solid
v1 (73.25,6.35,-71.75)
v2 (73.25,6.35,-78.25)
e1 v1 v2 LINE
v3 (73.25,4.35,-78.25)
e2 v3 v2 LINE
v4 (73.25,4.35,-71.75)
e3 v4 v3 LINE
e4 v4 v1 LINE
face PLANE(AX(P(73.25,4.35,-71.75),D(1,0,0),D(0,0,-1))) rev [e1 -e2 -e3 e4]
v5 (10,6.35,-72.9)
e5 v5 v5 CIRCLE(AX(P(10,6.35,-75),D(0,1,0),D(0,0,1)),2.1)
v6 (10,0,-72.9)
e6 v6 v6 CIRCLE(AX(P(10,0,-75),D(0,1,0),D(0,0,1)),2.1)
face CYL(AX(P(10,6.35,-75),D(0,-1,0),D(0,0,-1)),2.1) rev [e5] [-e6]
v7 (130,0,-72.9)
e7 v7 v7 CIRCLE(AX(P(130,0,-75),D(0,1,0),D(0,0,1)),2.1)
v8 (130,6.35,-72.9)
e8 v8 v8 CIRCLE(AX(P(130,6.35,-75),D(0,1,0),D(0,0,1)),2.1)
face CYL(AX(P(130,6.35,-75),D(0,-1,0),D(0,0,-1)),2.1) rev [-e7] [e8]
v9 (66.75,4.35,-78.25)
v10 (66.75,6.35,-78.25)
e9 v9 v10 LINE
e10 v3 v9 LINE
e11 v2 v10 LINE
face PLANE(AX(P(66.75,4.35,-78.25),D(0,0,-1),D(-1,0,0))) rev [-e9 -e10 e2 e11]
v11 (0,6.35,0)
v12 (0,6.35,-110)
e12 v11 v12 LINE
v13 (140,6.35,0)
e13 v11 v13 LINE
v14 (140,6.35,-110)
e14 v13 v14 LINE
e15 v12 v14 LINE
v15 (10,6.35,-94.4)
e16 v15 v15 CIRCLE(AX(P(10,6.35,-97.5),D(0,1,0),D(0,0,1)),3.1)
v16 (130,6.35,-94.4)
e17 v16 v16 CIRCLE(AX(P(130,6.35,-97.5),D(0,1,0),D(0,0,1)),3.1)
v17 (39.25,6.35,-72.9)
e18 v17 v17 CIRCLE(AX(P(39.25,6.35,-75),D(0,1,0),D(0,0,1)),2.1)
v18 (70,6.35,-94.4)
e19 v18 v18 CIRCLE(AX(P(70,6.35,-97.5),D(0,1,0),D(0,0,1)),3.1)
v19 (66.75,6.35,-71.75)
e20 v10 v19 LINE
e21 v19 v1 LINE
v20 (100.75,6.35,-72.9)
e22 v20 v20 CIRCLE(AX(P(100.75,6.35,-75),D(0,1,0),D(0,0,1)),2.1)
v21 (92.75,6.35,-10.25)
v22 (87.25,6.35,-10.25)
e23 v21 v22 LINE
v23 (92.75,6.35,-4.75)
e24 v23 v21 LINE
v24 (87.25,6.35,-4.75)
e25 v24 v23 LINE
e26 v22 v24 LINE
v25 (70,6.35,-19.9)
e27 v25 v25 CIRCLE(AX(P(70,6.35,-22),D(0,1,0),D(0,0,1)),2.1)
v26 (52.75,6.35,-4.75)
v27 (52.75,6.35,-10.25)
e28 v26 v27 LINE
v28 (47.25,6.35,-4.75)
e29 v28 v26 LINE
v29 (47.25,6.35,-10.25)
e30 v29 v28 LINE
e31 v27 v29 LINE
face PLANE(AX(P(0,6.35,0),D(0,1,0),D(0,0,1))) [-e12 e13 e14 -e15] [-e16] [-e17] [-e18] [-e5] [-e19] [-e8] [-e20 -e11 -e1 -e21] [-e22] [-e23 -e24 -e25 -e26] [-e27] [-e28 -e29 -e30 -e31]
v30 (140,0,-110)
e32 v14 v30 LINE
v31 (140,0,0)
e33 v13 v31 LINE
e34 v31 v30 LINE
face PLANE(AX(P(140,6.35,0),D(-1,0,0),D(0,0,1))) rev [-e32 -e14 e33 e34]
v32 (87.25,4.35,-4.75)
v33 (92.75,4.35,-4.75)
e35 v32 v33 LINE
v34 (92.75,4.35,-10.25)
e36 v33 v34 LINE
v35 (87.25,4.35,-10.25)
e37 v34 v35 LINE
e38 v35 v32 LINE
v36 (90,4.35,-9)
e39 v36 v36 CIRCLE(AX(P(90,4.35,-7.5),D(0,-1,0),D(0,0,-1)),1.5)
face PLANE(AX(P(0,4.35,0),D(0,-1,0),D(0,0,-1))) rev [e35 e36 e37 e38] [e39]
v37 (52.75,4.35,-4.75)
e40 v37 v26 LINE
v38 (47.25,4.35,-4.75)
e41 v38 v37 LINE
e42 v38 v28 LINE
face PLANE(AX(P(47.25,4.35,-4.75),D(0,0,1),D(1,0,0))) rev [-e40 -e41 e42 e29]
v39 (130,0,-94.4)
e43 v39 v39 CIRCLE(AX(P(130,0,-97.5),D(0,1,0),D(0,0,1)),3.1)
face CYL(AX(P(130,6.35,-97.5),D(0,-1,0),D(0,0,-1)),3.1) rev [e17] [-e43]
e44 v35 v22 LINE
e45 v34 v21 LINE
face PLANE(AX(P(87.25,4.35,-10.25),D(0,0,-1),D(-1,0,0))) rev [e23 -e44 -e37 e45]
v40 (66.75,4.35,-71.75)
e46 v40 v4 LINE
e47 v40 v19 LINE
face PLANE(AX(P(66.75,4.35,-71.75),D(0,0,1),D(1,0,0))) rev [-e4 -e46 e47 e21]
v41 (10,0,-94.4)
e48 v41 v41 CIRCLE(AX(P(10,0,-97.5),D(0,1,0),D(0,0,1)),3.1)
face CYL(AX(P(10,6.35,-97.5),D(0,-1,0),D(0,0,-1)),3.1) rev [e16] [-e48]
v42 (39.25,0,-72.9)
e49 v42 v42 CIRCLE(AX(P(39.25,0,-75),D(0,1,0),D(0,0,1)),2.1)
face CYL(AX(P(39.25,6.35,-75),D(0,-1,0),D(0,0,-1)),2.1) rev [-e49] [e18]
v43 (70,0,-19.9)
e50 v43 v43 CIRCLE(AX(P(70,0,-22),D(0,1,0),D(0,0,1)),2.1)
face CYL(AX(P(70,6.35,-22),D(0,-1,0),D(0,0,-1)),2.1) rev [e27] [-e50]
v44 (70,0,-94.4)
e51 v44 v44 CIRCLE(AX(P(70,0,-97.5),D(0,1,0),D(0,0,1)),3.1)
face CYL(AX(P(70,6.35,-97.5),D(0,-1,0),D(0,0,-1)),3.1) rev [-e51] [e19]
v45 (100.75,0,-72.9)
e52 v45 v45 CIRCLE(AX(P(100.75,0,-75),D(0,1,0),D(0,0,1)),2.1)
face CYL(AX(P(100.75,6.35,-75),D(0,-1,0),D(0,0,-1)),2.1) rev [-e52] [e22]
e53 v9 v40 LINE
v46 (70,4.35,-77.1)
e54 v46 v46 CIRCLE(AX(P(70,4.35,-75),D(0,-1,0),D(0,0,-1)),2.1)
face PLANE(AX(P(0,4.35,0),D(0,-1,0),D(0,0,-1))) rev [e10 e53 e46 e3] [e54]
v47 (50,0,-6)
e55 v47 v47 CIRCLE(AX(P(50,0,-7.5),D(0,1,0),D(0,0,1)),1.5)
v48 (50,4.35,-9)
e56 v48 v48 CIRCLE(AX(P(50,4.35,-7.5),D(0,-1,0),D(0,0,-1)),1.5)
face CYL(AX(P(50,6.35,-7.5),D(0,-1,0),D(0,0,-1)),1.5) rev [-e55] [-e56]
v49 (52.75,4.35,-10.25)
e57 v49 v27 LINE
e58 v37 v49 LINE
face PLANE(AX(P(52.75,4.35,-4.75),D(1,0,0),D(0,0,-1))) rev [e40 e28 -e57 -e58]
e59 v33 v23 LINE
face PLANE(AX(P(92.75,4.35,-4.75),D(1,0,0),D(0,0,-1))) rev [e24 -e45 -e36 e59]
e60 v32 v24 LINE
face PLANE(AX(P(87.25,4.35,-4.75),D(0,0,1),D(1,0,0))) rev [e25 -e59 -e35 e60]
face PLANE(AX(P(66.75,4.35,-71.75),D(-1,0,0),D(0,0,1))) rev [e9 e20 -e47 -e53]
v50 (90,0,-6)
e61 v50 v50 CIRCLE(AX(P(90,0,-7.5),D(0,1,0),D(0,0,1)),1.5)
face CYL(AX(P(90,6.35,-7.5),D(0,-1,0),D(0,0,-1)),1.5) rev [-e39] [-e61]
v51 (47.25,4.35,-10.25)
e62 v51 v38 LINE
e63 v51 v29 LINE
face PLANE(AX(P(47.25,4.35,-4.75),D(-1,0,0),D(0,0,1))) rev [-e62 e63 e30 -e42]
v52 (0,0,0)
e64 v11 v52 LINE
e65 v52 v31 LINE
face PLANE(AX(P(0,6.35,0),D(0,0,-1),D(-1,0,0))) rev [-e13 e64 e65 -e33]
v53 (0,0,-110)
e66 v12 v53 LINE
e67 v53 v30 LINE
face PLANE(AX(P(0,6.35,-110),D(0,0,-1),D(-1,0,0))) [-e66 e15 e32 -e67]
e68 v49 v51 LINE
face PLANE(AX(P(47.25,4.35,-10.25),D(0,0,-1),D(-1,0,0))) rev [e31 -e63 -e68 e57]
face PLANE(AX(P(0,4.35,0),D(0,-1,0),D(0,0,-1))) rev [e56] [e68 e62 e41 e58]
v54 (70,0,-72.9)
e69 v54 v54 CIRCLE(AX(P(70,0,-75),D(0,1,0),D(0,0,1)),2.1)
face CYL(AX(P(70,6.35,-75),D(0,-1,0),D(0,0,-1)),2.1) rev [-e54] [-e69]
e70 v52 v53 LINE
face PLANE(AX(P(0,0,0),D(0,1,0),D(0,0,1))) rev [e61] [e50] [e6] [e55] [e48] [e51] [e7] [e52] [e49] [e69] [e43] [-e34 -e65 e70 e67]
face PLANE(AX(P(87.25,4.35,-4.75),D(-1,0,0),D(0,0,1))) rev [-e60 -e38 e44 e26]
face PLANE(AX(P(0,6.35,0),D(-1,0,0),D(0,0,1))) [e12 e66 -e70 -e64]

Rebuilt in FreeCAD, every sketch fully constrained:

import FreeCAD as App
import Part
import Sketcher

V = App.Vector


def add_polygon(sketch, points):
    """Adds a closed chain of lines whose ends are joined by coincident constraints."""
    first, n = sketch.GeometryCount, len(points)
    for a, b in zip(points, points[1:] + points[:1]):
        sketch.addGeometry(Part.LineSegment(App.Vector(*a, 0), App.Vector(*b, 0)), False)
    for i in range(n):
        sketch.addConstraint(Sketcher.Constraint("Coincident", first + i, 2, first + (i + 1) % n, 1))

doc = App.newDocument("Part")
body = doc.addObject("PartDesign::Body", "Body")

sketch1 = doc.addObject("Sketcher::SketchObject", "Sketch")
body.addObject(sketch1)
sketch1.AttachmentSupport = (doc.XZ_Plane, [""])
sketch1.MapMode = "FlatFace"
add_polygon(sketch1, [(0, -110), (0, 0), (140, 0), (140, -110)])
sketch1.addGeometry(Part.Circle(V(50, -7.5, 0), V(0, 0, 1), 1.5), False)
sketch1.addGeometry(Part.Circle(V(90, -7.5, 0), V(0, 0, 1), 1.5), False)
sketch1.addGeometry(Part.Circle(V(70, -22, 0), V(0, 0, 1), 2.1), False)
sketch1.addGeometry(Part.Circle(V(10, -75, 0), V(0, 0, 1), 2.1), False)
sketch1.addGeometry(Part.Circle(V(39.2, -75, 0), V(0, 0, 1), 2.1), False)
sketch1.addGeometry(Part.Circle(V(10, -97.5, 0), V(0, 0, 1), 3.1), False)
sketch1.addGeometry(Part.Circle(V(70, -75, 0), V(0, 0, 1), 2.1), False)
sketch1.addGeometry(Part.Circle(V(100.8, -75, 0), V(0, 0, 1), 2.1), False)
sketch1.addGeometry(Part.Circle(V(130, -75, 0), V(0, 0, 1), 2.1), False)
sketch1.addGeometry(Part.Circle(V(70, -97.5, 0), V(0, 0, 1), 3.1), False)
sketch1.addGeometry(Part.Circle(V(130, -97.5, 0), V(0, 0, 1), 3.1), False)
sketch1.addConstraint([
    Sketcher.Constraint("Vertical", 0),
    Sketcher.Constraint("Horizontal", 1),
    Sketcher.Constraint("Vertical", 2),
    Sketcher.Constraint("Horizontal", 3),
    Sketcher.Constraint("Coincident", 0, 2, -1, 1),
    Sketcher.Constraint("Equal", 4, 5),
    Sketcher.Constraint("Equal", 6, 7),
    Sketcher.Constraint("Equal", 7, 8),
    Sketcher.Constraint("Equal", 8, 10),
    Sketcher.Constraint("Equal", 10, 11),
    Sketcher.Constraint("Equal", 11, 12),
    Sketcher.Constraint("Equal", 9, 13),
    Sketcher.Constraint("Equal", 13, 14),
    Sketcher.Constraint("Horizontal", 4, 3, 5, 3),
    Sketcher.Constraint("Horizontal", 7, 3, 8, 3),
    Sketcher.Constraint("Horizontal", 8, 3, 10, 3),
    Sketcher.Constraint("Horizontal", 10, 3, 11, 3),
    Sketcher.Constraint("Horizontal", 11, 3, 12, 3),
    Sketcher.Constraint("Horizontal", 9, 3, 13, 3),
    Sketcher.Constraint("Horizontal", 13, 3, 14, 3),
    Sketcher.Constraint("Vertical", 7, 3, 9, 3),
    Sketcher.Constraint("Vertical", 6, 3, 10, 3),
    Sketcher.Constraint("Vertical", 10, 3, 13, 3),
    Sketcher.Constraint("Vertical", 12, 3, 14, 3),
    Sketcher.Constraint("Diameter", 4, 3.0),
    Sketcher.Constraint("Diameter", 6, 4.2),
    Sketcher.Constraint("Diameter", 9, 6.2),
    Sketcher.Constraint("DistanceX", 1, 1, 1, 2, 140.0),
    Sketcher.Constraint("DistanceY", 0, 1, 0, 2, 110.0),
    Sketcher.Constraint("DistanceX", -1, 1, 4, 3, 50.0),
    Sketcher.Constraint("DistanceX", -1, 1, 5, 3, 90.0),
    Sketcher.Constraint("DistanceX", -1, 1, 6, 3, 70.0),
    Sketcher.Constraint("DistanceY", 6, 3, -1, 1, 22.0),
    Sketcher.Constraint("DistanceX", -1, 1, 7, 3, 10.0),
    Sketcher.Constraint("DistanceY", 7, 3, -1, 1, 75.0),
    Sketcher.Constraint("DistanceX", -1, 1, 12, 3, 130.0),
    Sketcher.Constraint("DistanceY", 9, 3, 4, 3, 90.0),
    Sketcher.Constraint("DistanceY", 4, 3, -1, 1, 7.5),
    Sketcher.Constraint("DistanceX", 8, 3, 11, 3, 61.5),
    Sketcher.Constraint("DistanceX", -1, 1, 8, 3, 39.25),
])
pad1 = doc.addObject("PartDesign::Pad", "Pad")
body.addObject(pad1)
pad1.Profile = sketch1
pad1.Length = 6.35
pad1.Reversed = True

sketch2 = doc.addObject("Sketcher::SketchObject", "Sketch001")
body.addObject(sketch2)
sketch2.AttachmentSupport = (doc.XZ_Plane, [""])
sketch2.MapMode = "FlatFace"
sketch2.AttachmentOffset = App.Placement(V(0, 0, -6.35), App.Rotation())
add_polygon(sketch2, [(67, -78), (67, -72), (73, -72), (73, -78)])
add_polygon(sketch2, [(47, -10), (47, -5), (53, -5), (53, -10)])
add_polygon(sketch2, [(87, -10), (87, -5), (93, -5), (93, -10)])
sketch2.addConstraint([
    Sketcher.Constraint("Vertical", 0),
    Sketcher.Constraint("Horizontal", 1),
    Sketcher.Constraint("Vertical", 2),
    Sketcher.Constraint("Horizontal", 3),
    Sketcher.Constraint("Vertical", 4),
    Sketcher.Constraint("Horizontal", 5),
    Sketcher.Constraint("Vertical", 6),
    Sketcher.Constraint("Horizontal", 7),
    Sketcher.Constraint("Vertical", 8),
    Sketcher.Constraint("Horizontal", 9),
    Sketcher.Constraint("Vertical", 10),
    Sketcher.Constraint("Horizontal", 11),
    Sketcher.Constraint("Horizontal", 5, 2, 8, 2),
    Sketcher.Constraint("Horizontal", 7, 2, 10, 2),
    Sketcher.Constraint("Equal", 7, 9),
    Sketcher.Constraint("Equal", 3, 0),
    Sketcher.Constraint("Equal", 11, 4),
    Sketcher.Constraint("DistanceX", 1, 1, 1, 2, 6.5),
    Sketcher.Constraint("DistanceX", 5, 1, 5, 2, 5.5),
    Sketcher.Constraint("DistanceY", 0, 2, 4, 2, 67.0),
    Sketcher.Constraint("DistanceX", 4, 2, 1, 2, 26.0),
    Sketcher.Constraint("DistanceX", 4, 2, 8, 2, 40.0),
    Sketcher.Constraint("DistanceX", -1, 1, 0, 2, 66.75),
    Sketcher.Constraint("DistanceY", 0, 2, -1, 1, 71.75),
])
pocket1 = doc.addObject("PartDesign::Pocket", "Pocket")
body.addObject(pocket1)
pocket1.Profile = sketch2
pocket1.Length = 2
pocket1.Reversed = True

doc.recompute()
